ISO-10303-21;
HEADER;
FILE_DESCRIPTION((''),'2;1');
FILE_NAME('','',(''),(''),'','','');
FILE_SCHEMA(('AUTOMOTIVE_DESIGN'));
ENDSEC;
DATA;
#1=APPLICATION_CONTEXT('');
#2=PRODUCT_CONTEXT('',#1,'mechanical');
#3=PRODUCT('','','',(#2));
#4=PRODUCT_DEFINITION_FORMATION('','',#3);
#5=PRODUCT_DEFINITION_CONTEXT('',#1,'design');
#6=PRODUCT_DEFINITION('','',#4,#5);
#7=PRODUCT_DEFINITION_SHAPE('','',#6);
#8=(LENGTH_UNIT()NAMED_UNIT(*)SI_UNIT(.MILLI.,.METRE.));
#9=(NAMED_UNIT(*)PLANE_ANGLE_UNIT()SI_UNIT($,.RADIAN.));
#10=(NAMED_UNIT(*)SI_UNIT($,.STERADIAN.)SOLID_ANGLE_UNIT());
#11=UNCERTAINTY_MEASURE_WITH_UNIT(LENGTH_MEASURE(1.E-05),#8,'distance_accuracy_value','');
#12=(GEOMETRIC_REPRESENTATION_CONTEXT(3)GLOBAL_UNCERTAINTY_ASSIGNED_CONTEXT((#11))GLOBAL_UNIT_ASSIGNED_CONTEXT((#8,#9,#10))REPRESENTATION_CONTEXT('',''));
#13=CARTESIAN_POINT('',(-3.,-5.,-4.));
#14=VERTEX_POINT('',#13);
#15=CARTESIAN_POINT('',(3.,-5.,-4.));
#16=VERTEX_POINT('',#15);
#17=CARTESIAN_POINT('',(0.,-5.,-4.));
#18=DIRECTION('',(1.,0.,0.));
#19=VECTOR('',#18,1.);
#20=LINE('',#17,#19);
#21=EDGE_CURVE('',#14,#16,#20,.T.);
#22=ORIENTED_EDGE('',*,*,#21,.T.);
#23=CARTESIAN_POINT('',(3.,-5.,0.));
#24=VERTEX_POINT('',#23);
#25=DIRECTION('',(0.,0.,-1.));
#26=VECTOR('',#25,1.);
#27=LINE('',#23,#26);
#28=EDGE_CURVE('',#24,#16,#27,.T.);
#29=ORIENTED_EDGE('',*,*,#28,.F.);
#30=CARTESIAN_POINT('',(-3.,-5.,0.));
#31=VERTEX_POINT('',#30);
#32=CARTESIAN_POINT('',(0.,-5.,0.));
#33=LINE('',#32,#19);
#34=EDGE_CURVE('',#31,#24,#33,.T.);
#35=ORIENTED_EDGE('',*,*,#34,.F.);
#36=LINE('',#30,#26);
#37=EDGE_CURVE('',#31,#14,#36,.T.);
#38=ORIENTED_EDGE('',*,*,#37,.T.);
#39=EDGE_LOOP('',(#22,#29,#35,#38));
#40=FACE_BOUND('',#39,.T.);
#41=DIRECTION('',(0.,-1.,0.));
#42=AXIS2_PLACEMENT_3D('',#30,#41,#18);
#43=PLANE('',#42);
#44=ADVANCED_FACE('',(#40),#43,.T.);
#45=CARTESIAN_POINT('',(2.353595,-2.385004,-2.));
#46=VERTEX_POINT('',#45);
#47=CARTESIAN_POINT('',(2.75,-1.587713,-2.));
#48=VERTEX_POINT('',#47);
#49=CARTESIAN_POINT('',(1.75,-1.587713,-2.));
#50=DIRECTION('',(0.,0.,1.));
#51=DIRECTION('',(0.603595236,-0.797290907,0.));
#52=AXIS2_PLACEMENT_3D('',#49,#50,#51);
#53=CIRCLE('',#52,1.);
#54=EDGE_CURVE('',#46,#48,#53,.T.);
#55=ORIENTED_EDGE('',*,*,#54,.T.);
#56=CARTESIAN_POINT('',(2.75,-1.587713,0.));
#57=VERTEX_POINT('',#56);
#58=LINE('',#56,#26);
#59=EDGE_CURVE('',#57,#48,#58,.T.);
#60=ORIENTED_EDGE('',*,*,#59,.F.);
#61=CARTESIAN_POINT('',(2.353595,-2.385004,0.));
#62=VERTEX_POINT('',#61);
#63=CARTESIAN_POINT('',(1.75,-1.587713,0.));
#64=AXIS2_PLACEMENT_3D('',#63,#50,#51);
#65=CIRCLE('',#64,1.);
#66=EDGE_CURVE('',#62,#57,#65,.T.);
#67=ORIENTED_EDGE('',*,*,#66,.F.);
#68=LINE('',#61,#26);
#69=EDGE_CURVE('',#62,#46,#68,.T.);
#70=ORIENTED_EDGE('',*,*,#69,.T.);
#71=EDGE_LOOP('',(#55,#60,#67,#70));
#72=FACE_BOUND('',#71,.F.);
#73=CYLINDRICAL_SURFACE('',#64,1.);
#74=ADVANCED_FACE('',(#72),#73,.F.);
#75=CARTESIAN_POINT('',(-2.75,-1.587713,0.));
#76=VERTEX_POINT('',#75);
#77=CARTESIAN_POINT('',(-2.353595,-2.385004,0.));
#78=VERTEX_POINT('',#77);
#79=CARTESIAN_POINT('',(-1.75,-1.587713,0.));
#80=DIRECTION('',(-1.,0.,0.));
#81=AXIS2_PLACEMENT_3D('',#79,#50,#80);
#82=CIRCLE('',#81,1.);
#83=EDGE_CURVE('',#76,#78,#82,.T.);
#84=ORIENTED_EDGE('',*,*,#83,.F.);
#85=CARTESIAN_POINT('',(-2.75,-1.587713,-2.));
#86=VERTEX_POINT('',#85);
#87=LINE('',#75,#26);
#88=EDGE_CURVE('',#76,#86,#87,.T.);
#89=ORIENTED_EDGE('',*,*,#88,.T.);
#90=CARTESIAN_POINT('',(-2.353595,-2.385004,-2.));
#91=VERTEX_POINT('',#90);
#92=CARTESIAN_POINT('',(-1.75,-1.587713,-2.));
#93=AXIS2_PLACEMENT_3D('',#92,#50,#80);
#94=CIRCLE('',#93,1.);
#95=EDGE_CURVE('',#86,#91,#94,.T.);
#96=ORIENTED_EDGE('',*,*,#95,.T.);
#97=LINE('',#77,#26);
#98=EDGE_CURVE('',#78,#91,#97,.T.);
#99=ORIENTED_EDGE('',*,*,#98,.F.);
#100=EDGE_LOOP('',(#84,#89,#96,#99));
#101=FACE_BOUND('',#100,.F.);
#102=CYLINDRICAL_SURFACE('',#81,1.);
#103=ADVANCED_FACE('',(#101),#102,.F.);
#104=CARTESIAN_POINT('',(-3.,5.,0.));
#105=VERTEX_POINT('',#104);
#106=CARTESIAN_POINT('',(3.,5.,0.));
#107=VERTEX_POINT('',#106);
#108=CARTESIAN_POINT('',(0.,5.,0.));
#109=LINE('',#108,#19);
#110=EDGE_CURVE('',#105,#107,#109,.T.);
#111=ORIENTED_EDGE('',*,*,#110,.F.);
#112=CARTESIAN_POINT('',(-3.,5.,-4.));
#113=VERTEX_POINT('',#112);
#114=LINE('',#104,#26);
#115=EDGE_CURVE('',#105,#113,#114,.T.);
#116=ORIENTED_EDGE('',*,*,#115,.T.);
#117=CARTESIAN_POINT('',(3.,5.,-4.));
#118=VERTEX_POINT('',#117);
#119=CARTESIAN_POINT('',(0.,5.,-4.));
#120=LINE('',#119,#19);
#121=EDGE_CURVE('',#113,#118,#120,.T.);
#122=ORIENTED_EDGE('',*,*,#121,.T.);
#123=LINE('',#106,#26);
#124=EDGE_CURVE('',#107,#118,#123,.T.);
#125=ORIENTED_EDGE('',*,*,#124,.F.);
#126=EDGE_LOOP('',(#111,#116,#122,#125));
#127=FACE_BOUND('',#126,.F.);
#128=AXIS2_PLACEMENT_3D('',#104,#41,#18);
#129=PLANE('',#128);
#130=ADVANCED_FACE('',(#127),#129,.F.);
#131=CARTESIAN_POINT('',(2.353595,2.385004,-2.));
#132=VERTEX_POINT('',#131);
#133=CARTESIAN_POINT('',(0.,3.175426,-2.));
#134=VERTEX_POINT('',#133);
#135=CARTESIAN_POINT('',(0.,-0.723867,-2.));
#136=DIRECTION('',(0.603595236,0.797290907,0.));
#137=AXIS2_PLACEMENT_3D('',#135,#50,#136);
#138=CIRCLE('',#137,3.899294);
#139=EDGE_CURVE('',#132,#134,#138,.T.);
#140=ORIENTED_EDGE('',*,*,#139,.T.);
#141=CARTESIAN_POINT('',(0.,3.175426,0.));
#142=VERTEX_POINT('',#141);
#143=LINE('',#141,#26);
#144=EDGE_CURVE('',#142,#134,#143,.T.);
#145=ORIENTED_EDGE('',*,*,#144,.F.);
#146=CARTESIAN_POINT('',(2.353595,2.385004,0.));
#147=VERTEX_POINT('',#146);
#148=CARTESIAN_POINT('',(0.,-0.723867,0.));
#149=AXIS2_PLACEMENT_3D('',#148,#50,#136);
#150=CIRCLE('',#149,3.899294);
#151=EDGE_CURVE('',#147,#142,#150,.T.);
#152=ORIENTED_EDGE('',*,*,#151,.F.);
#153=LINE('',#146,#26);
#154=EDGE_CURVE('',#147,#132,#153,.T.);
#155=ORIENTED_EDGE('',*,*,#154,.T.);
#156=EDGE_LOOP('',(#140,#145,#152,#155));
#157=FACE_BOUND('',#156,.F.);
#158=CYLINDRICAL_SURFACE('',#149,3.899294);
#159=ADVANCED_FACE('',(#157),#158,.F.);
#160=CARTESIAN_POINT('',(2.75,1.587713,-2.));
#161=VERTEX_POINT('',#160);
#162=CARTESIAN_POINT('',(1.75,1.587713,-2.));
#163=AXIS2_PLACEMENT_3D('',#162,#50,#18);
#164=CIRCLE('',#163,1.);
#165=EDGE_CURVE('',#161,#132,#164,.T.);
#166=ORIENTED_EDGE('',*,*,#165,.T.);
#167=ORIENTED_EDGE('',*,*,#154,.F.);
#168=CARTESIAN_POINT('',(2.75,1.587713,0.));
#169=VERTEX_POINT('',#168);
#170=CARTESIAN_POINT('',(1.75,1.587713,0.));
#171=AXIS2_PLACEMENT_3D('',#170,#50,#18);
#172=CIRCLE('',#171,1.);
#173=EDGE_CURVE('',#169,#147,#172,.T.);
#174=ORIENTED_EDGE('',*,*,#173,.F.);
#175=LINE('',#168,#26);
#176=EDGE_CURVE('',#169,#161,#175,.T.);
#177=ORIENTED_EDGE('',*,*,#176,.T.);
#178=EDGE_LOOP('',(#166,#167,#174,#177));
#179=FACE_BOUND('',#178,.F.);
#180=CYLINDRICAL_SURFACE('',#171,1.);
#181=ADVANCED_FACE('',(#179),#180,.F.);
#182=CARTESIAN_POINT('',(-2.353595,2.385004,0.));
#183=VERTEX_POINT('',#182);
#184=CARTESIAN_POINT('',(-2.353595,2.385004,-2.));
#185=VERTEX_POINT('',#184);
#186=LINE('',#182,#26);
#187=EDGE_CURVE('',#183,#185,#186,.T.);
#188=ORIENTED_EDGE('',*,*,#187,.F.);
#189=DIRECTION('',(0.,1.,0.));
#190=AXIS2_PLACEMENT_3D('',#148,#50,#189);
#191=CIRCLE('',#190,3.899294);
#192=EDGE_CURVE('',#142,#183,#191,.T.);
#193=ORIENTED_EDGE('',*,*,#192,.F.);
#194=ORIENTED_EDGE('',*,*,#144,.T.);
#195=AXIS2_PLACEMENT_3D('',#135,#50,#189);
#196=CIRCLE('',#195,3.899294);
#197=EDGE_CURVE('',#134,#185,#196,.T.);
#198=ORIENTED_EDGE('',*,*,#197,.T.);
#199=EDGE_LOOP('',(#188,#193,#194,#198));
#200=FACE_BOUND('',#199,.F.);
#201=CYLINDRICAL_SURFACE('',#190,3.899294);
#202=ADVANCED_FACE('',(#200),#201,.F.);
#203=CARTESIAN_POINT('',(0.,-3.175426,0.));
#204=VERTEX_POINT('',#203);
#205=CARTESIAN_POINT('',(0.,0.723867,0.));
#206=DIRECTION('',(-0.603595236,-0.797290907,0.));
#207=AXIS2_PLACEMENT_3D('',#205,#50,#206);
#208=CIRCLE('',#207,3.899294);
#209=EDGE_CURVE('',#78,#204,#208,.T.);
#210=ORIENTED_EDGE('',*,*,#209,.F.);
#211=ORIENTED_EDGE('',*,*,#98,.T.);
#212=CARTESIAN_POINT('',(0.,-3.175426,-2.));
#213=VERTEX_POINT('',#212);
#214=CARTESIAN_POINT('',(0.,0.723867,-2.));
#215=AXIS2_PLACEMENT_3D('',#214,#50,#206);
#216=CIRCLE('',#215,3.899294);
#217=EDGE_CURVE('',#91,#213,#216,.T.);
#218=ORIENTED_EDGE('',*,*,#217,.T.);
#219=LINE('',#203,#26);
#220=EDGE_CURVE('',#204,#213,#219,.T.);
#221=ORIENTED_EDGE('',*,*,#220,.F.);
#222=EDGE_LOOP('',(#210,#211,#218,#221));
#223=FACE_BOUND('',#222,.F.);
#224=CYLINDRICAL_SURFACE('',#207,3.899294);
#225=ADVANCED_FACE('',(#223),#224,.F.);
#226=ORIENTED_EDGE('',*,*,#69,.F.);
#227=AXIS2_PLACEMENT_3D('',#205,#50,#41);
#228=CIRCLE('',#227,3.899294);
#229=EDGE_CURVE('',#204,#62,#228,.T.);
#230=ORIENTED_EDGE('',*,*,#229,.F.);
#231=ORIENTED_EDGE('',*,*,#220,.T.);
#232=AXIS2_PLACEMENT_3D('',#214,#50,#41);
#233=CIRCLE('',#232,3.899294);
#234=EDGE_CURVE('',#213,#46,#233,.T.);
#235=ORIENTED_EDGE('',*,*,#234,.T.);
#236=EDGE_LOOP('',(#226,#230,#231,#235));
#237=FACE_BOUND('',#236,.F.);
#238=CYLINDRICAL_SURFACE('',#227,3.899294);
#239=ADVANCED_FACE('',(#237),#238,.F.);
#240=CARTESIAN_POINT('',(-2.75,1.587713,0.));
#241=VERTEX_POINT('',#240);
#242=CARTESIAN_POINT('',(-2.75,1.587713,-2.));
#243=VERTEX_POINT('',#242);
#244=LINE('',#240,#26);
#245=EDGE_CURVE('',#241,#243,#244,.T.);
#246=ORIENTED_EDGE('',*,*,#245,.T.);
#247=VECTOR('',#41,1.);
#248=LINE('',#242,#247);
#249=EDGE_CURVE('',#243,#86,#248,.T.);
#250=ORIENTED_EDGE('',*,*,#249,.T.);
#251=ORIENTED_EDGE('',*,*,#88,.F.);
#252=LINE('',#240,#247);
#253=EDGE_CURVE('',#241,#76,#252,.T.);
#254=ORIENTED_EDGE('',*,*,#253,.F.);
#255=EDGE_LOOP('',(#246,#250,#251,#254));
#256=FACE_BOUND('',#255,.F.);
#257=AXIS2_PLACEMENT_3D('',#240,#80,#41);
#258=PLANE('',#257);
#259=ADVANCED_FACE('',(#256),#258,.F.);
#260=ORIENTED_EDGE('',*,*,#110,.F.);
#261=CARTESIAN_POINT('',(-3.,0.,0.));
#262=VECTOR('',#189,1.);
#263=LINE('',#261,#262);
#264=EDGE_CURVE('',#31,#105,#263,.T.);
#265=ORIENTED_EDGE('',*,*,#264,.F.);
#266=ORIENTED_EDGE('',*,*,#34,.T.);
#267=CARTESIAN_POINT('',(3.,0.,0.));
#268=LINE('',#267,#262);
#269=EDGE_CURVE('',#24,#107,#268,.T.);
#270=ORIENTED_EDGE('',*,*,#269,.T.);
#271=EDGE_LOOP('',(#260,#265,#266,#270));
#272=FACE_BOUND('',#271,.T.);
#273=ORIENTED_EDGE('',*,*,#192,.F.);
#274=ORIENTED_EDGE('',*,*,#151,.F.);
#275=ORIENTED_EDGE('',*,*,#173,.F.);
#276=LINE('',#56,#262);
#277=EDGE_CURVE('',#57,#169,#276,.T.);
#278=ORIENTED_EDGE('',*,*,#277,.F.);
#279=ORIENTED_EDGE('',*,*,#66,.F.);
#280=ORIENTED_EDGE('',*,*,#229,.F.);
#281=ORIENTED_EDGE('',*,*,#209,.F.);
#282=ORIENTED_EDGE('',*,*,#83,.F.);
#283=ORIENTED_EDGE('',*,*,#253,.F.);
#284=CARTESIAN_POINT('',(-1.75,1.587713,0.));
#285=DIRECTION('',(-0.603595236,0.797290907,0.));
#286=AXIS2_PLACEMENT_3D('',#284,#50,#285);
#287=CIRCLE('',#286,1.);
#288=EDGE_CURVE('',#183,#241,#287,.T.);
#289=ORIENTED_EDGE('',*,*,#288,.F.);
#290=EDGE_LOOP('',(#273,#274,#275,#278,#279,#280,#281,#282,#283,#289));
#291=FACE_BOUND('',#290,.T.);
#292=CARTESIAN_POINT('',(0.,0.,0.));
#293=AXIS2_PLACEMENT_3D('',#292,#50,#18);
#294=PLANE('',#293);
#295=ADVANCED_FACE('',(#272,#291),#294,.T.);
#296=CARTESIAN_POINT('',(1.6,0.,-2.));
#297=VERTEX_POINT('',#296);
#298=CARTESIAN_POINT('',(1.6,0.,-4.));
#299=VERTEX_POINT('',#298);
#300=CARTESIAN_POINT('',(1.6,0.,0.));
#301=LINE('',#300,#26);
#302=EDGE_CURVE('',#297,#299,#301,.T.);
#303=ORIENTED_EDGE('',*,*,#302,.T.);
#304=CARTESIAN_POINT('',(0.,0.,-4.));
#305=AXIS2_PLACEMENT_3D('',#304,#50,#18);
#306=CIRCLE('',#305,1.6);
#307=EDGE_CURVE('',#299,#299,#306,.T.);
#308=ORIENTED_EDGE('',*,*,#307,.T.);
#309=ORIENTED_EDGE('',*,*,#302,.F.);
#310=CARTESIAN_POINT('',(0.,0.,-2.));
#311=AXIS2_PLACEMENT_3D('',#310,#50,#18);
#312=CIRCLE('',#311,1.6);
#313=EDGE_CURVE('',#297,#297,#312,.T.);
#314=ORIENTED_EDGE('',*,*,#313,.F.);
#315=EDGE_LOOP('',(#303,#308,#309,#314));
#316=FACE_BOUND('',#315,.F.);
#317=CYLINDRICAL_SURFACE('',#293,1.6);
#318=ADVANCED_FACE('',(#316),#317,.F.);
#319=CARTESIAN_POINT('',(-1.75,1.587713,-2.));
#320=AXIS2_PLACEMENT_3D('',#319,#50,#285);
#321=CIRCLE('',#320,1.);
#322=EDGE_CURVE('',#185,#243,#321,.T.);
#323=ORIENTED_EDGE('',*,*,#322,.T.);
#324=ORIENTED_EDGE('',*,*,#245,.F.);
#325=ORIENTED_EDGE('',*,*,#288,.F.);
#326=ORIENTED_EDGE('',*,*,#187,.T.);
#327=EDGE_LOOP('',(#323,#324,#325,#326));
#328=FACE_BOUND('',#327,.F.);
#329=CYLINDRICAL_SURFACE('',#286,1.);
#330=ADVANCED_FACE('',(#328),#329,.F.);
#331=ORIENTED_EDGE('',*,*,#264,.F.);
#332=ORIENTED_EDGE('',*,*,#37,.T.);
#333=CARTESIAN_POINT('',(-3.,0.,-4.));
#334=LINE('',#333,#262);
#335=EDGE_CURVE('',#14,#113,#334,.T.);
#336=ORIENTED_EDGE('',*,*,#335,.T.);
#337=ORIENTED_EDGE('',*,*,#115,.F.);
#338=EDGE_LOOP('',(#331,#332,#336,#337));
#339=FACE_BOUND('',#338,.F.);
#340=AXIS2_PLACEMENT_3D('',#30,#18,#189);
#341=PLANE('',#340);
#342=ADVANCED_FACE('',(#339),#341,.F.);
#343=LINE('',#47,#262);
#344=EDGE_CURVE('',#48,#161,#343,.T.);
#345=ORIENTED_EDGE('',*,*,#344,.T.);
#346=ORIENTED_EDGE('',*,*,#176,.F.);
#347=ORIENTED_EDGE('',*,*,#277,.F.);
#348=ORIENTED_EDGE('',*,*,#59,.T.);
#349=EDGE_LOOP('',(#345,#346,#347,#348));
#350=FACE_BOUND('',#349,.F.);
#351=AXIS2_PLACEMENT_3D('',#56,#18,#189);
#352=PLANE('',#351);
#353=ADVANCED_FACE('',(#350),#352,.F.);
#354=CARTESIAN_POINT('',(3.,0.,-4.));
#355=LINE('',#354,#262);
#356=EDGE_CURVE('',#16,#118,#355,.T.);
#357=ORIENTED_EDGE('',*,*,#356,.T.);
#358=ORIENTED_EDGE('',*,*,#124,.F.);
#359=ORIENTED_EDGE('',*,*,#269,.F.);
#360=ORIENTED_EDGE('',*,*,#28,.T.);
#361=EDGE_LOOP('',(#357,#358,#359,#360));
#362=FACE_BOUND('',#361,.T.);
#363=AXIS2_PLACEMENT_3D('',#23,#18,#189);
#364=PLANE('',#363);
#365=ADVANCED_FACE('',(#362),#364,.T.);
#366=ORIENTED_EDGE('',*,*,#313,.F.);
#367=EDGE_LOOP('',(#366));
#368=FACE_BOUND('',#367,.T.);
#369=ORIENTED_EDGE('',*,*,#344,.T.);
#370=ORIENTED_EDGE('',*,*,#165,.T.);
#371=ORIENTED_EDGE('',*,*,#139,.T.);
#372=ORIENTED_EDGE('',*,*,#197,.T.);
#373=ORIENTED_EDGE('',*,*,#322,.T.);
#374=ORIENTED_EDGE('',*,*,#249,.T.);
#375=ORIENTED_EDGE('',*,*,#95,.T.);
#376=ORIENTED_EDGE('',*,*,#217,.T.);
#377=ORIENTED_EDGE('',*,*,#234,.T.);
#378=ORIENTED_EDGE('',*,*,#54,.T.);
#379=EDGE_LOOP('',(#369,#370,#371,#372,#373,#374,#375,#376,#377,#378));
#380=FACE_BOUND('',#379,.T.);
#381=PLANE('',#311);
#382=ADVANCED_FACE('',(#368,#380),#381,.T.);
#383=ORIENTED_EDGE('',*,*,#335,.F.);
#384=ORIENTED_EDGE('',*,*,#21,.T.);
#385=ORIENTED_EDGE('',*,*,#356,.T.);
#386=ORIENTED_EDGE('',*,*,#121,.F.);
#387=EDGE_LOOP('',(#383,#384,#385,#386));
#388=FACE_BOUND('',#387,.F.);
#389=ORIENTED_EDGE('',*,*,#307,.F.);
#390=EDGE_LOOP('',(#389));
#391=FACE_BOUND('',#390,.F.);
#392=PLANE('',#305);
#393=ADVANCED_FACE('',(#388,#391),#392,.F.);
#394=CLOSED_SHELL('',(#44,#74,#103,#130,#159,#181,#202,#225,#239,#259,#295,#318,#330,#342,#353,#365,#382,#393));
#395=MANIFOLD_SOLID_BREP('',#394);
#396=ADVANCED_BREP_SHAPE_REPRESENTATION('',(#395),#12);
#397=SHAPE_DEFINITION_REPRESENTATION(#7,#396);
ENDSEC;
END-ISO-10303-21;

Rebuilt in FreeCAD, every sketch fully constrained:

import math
import FreeCAD as App
import Part
import Sketcher
from FreeCAD import Vector
Q = App.Units.Quantity


def add_polygon(sketch, points):
    """Adds a closed chain of lines whose ends are joined by coincident constraints."""
    first, n = sketch.GeometryCount, len(points)
    for a, b in zip(points, points[1:] + points[:1]):
        sketch.addGeometry(Part.LineSegment(App.Vector(*a, 0), App.Vector(*b, 0)), False)
    for i in range(n):
        sketch.addConstraint(Sketcher.Constraint("Coincident", first + i, 2, first + (i + 1) % n, 1))

doc = App.newDocument("Part")
body = doc.addObject("PartDesign::Body", "Body")

sketch1 = doc.addObject("Sketcher::SketchObject", "Sketch")
body.addObject(sketch1)
sketch1.AttachmentSupport = (doc.XY_Plane, [""])
sketch1.MapMode = "FlatFace"
add_polygon(sketch1, [(-3, 5), (-3, -5), (3, -5), (3, 5)])
sketch1.addGeometry(Part.Circle(Vector(0, 0, 0), Vector(0, 0, 1), 1.6), False)
sketch1.addConstraint([
    Sketcher.Constraint("Vertical", 0),
    Sketcher.Constraint("Horizontal", 1),
    Sketcher.Constraint("Vertical", 2),
    Sketcher.Constraint("Horizontal", 3),
    Sketcher.Constraint("Coincident", 4, 3, -1, 1),
    Sketcher.Constraint("Symmetric", 0, 2, 2, 2, -1, 1),
    Sketcher.Constraint("Diameter", 4, Q("3.2 mm")),
    Sketcher.Constraint("DistanceX", 1, 1, 1, 2, Q("6 mm")),
    Sketcher.Constraint("DistanceY", 0, 2, 0, 1, Q("10 mm")),
])
pad1 = doc.addObject("PartDesign::Pad", "Pad")
body.addObject(pad1)
pad1.Profile = sketch1
pad1.Length = 4
pad1.Reversed = True

sketch2 = doc.addObject("Sketcher::SketchObject", "Sketch001")
body.addObject(sketch2)
sketch2.AttachmentSupport = (doc.XY_Plane, [""])
sketch2.MapMode = "FlatFace"
sketch2.addGeometry([
    Part.LineSegment(Vector(2.75, -1.587713, 0), Vector(2.75, 1.587713, 0)),
    Part.ArcOfCircle(Part.Circle(Vector(1.75, 1.587713, 0), Vector(0, 0, 1), 1), math.radians(0), math.radians(52.872176)),
    Part.ArcOfCircle(Part.Circle(Vector(0, -0.723867, 0), Vector(0, 0, 1), 3.899294), math.radians(52.872176), math.radians(90)),
    Part.ArcOfCircle(Part.Circle(Vector(0, -0.723867, 0), Vector(0, 0, 1), 3.899294), math.radians(90), math.radians(127.127824)),
    Part.ArcOfCircle(Part.Circle(Vector(-1.75, 1.587713, 0), Vector(0, 0, 1), 1), math.radians(127.127824), math.radians(180)),
    Part.LineSegment(Vector(-2.75, 1.587713, 0), Vector(-2.75, -1.587713, 0)),
    Part.ArcOfCircle(Part.Circle(Vector(-1.75, -1.587713, 0), Vector(0, 0, 1), 1), math.radians(180), math.radians(232.872176)),
    Part.ArcOfCircle(Part.Circle(Vector(0, 0.723867, 0), Vector(0, 0, 1), 3.899294), math.radians(-127.127824), math.radians(-90)),
    Part.ArcOfCircle(Part.Circle(Vector(0, 0.723867, 0), Vector(0, 0, 1), 3.899294), math.radians(-90), math.radians(-52.872176)),
    Part.ArcOfCircle(Part.Circle(Vector(1.75, -1.587713, 0), Vector(0, 0, 1), 1), math.radians(-52.872176), math.radians(0)),
    Part.Circle(Vector(0, 0, 0), Vector(0, 0, 1), 1.6),
], False)
sketch2.addConstraint([
    Sketcher.Constraint("Tangent", 0, 2, 1, 1),
    Sketcher.Constraint("Tangent", 1, 2, 2, 1),
    Sketcher.Constraint("Tangent", 2, 2, 3, 1),
    Sketcher.Constraint("Tangent", 3, 2, 4, 1),
    Sketcher.Constraint("Tangent", 4, 2, 5, 1),
    Sketcher.Constraint("Tangent", 5, 2, 6, 1),
    Sketcher.Constraint("Tangent", 6, 2, 7, 1),
    Sketcher.Constraint("Tangent", 7, 2, 8, 1),
    Sketcher.Constraint("Tangent", 8, 2, 9, 1),
    Sketcher.Constraint("Tangent", 9, 2, 0, 1),
    Sketcher.Constraint("Vertical", 0),
    Sketcher.Constraint("Vertical", 5),
    Sketcher.Constraint("Coincident", 10, 3, -1, 1),
    Sketcher.Constraint("Equal", 2, 3),
    Sketcher.Constraint("Equal", 1, 4),
    Sketcher.Constraint("Equal", 4, 6),
    Sketcher.Constraint("Equal", 3, 7),
    Sketcher.Constraint("Equal", 7, 8),
    Sketcher.Constraint("Equal", 6, 9),
    Sketcher.Constraint("Symmetric", 1, 3, 6, 3, -1, 1),
    Sketcher.Constraint("Symmetric", 2, 2, 7, 2, -1, 1),
    Sketcher.Constraint("PointOnObject", 2, 3, -2),
    Sketcher.Constraint("PointOnObject", 2, 2, -2),
    Sketcher.Constraint("Radius", 1, Q("1 mm")),
    Sketcher.Constraint("Diameter", 10, Q("3.2 mm")),
    Sketcher.Constraint("DistanceX", 4, 3, 1, 3, Q("3.5 mm")),
    Sketcher.Constraint("Radius", 2, Q("3.899294 mm")),
    Sketcher.Constraint("DistanceY", 0, 1, 0, 2, Q("3.175426 mm")),
])
pocket1 = doc.addObject("PartDesign::Pocket", "Pocket")
body.addObject(pocket1)
pocket1.Profile = sketch2
pocket1.Length = 2

doc.recompute()
